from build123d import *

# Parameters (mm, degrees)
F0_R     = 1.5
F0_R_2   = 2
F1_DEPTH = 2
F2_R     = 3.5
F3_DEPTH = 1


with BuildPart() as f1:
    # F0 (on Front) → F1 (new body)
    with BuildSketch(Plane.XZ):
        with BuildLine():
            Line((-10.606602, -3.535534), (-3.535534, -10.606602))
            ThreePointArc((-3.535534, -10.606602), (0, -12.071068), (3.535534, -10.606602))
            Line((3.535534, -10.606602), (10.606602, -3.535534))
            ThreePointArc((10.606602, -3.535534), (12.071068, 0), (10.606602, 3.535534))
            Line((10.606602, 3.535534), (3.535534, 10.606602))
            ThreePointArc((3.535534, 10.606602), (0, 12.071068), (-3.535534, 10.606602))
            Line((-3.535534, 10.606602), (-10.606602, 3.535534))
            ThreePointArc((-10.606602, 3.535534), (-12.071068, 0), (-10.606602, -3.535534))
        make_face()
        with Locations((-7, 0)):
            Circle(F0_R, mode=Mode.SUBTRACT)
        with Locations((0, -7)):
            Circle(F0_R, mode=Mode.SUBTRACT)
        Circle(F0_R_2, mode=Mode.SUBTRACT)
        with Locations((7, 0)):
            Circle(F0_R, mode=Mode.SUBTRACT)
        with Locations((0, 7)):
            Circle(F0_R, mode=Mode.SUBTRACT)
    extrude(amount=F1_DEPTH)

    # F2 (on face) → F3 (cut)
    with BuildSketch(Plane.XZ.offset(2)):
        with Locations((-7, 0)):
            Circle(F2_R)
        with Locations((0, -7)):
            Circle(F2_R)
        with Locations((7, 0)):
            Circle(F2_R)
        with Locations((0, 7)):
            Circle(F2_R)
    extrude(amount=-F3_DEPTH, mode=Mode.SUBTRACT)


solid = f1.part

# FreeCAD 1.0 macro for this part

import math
import FreeCAD as App
import Part
import Sketcher
Q = App.Units.Quantity

doc = App.newDocument("Part")
body = doc.addObject("PartDesign::Body", "Body")

# Sketch on XZ plane
sketch1 = body.newObject("Sketcher::SketchObject", "Sketch")
sketch1.AttachmentSupport = (doc.getObject("XZ_Plane"), [""])
sketch1.MapMode = "FlatFace"
sketch1.addGeometry(Part.LineSegment(App.Vector(-10.6, -3.5, 0), App.Vector(-3.5, -10.6, 0)), False)
sketch1.addGeometry(Part.ArcOfCircle(Part.Circle(App.Vector(0, -7.1, 0), App.Vector(0, 0, 1), 5), math.radians(-135), math.radians(-45)), False)
sketch1.addGeometry(Part.LineSegment(App.Vector(3.5, -10.6, 0), App.Vector(10.6, -3.5, 0)), False)
sketch1.addGeometry(Part.ArcOfCircle(Part.Circle(App.Vector(7.1, 0, 0), App.Vector(0, 0, 1), 5), math.radians(-45), math.radians(45)), False)
sketch1.addGeometry(Part.LineSegment(App.Vector(10.6, 3.5, 0), App.Vector(3.5, 10.6, 0)), False)
sketch1.addGeometry(Part.ArcOfCircle(Part.Circle(App.Vector(0, 7.1, 0), App.Vector(0, 0, 1), 5), math.radians(45), math.radians(135)), False)
sketch1.addGeometry(Part.LineSegment(App.Vector(-3.5, 10.6, 0), App.Vector(-10.6, 3.5, 0)), False)
sketch1.addGeometry(Part.ArcOfCircle(Part.Circle(App.Vector(-7.1, 0, 0), App.Vector(0, 0, 1), 5), math.radians(135), math.radians(225)), False)
sketch1.addGeometry(Part.Circle(App.Vector(0, -7, 0), App.Vector(0, 0, 1), 1.5), False)
sketch1.addGeometry(Part.Circle(App.Vector(-7, 0, 0), App.Vector(0, 0, 1), 1.5), False)
sketch1.addGeometry(Part.Circle(App.Vector(0, 0, 0), App.Vector(0, 0, 1), 2), False)
sketch1.addGeometry(Part.Circle(App.Vector(7, 0, 0), App.Vector(0, 0, 1), 1.5), False)
sketch1.addGeometry(Part.Circle(App.Vector(0, 7, 0), App.Vector(0, 0, 1), 1.5), False)
sketch1.addConstraint(Sketcher.Constraint("Tangent", 0, 2, 1, 1))
sketch1.addConstraint(Sketcher.Constraint("Tangent", 1, 2, 2, 1))
sketch1.addConstraint(Sketcher.Constraint("Tangent", 2, 2, 3, 1))
sketch1.addConstraint(Sketcher.Constraint("Tangent", 3, 2, 4, 1))
sketch1.addConstraint(Sketcher.Constraint("Tangent", 4, 2, 5, 1))
sketch1.addConstraint(Sketcher.Constraint("Tangent", 5, 2, 6, 1))
sketch1.addConstraint(Sketcher.Constraint("Tangent", 6, 2, 7, 1))
sketch1.addConstraint(Sketcher.Constraint("Tangent", 7, 2, 0, 1))
sketch1.addConstraint(Sketcher.Constraint("Coincident", 10, 3, -1, 1))
sketch1.addConstraint(Sketcher.Constraint("Equal", 1, 3))
sketch1.addConstraint(Sketcher.Constraint("Equal", 3, 5))
sketch1.addConstraint(Sketcher.Constraint("Equal", 5, 7))
sketch1.addConstraint(Sketcher.Constraint("Equal", 8, 9))
sketch1.addConstraint(Sketcher.Constraint("Equal", 9, 11))
sketch1.addConstraint(Sketcher.Constraint("Equal", 11, 12))
sketch1.addConstraint(Sketcher.Constraint("Symmetric", 1, 3, 5, 3, -1, 1))
sketch1.addConstraint(Sketcher.Constraint("Symmetric", 3, 3, 7, 3, -1, 1))
sketch1.addConstraint(Sketcher.Constraint("Symmetric", 9, 3, 11, 3, -1, 1))
sketch1.addConstraint(Sketcher.Constraint("Symmetric", 8, 3, 12, 3, -1, 1))
sketch1.addConstraint(Sketcher.Constraint("Symmetric", 0, 2, 1, 2, -2))
sketch1.addConstraint(Sketcher.Constraint("PointOnObject", 8, 3, -2))
sketch1.addConstraint(Sketcher.Constraint("PointOnObject", 9, 3, -1))
sketch1.addConstraint(Sketcher.Constraint("Perpendicular", 0, 2))
sketch1.addConstraint(Sketcher.Constraint("Diameter", 8, Q("3 mm")))
sketch1.addConstraint(Sketcher.Constraint("Diameter", 10, Q("4 mm")))
sketch1.addConstraint(Sketcher.Constraint("Radius", 1, Q("5 mm")))
sketch1.addConstraint(Sketcher.Constraint("Distance", 0, Q("10 mm")))
sketch1.addConstraint(Sketcher.Constraint("DistanceY", 8, 3, -1, 1, Q("7 mm")))
sketch1.addConstraint(Sketcher.Constraint("DistanceX", 9, 3, -1, 1, Q("7 mm")))
pad1 = body.newObject("PartDesign::Pad", "Pad")
pad1.Profile = sketch1
pad1.Length = 2

# Sketch on XZ plane
sketch2 = body.newObject("Sketcher::SketchObject", "Sketch001")
sketch2.AttachmentSupport = (doc.getObject("XZ_Plane"), [""])
sketch2.MapMode = "FlatFace"
sketch2.AttachmentOffset = App.Placement(App.Vector(0, 0, 2), App.Rotation())
sketch2.addGeometry(Part.Circle(App.Vector(-7, 0, 0), App.Vector(0, 0, 1), 3.5), False)
sketch2.addGeometry(Part.Circle(App.Vector(0, -7, 0), App.Vector(0, 0, 1), 3.5), False)
sketch2.addGeometry(Part.Circle(App.Vector(7, 0, 0), App.Vector(0, 0, 1), 3.5), False)
sketch2.addGeometry(Part.Circle(App.Vector(0, 7, 0), App.Vector(0, 0, 1), 3.5), False)
sketch2.addConstraint(Sketcher.Constraint("Equal", 0, 1))
sketch2.addConstraint(Sketcher.Constraint("Equal", 1, 2))
sketch2.addConstraint(Sketcher.Constraint("Equal", 2, 3))
sketch2.addConstraint(Sketcher.Constraint("Symmetric", 0, 3, 2, 3, -1, 1))
sketch2.addConstraint(Sketcher.Constraint("Symmetric", 1, 3, 3, 3, -1, 1))
sketch2.addConstraint(Sketcher.Constraint("PointOnObject", 0, 3, -1))
sketch2.addConstraint(Sketcher.Constraint("PointOnObject", 1, 3, -2))
sketch2.addConstraint(Sketcher.Constraint("Diameter", 0, Q("7 mm")))
sketch2.addConstraint(Sketcher.Constraint("DistanceX", 0, 3, -1, 1, Q("7 mm")))
sketch2.addConstraint(Sketcher.Constraint("DistanceY", 1, 3, -1, 1, Q("7 mm")))
pocket1 = body.newObject("PartDesign::Pocket", "Pocket")
pocket1.Profile = sketch2
pocket1.Length = 1

doc.recompute()
